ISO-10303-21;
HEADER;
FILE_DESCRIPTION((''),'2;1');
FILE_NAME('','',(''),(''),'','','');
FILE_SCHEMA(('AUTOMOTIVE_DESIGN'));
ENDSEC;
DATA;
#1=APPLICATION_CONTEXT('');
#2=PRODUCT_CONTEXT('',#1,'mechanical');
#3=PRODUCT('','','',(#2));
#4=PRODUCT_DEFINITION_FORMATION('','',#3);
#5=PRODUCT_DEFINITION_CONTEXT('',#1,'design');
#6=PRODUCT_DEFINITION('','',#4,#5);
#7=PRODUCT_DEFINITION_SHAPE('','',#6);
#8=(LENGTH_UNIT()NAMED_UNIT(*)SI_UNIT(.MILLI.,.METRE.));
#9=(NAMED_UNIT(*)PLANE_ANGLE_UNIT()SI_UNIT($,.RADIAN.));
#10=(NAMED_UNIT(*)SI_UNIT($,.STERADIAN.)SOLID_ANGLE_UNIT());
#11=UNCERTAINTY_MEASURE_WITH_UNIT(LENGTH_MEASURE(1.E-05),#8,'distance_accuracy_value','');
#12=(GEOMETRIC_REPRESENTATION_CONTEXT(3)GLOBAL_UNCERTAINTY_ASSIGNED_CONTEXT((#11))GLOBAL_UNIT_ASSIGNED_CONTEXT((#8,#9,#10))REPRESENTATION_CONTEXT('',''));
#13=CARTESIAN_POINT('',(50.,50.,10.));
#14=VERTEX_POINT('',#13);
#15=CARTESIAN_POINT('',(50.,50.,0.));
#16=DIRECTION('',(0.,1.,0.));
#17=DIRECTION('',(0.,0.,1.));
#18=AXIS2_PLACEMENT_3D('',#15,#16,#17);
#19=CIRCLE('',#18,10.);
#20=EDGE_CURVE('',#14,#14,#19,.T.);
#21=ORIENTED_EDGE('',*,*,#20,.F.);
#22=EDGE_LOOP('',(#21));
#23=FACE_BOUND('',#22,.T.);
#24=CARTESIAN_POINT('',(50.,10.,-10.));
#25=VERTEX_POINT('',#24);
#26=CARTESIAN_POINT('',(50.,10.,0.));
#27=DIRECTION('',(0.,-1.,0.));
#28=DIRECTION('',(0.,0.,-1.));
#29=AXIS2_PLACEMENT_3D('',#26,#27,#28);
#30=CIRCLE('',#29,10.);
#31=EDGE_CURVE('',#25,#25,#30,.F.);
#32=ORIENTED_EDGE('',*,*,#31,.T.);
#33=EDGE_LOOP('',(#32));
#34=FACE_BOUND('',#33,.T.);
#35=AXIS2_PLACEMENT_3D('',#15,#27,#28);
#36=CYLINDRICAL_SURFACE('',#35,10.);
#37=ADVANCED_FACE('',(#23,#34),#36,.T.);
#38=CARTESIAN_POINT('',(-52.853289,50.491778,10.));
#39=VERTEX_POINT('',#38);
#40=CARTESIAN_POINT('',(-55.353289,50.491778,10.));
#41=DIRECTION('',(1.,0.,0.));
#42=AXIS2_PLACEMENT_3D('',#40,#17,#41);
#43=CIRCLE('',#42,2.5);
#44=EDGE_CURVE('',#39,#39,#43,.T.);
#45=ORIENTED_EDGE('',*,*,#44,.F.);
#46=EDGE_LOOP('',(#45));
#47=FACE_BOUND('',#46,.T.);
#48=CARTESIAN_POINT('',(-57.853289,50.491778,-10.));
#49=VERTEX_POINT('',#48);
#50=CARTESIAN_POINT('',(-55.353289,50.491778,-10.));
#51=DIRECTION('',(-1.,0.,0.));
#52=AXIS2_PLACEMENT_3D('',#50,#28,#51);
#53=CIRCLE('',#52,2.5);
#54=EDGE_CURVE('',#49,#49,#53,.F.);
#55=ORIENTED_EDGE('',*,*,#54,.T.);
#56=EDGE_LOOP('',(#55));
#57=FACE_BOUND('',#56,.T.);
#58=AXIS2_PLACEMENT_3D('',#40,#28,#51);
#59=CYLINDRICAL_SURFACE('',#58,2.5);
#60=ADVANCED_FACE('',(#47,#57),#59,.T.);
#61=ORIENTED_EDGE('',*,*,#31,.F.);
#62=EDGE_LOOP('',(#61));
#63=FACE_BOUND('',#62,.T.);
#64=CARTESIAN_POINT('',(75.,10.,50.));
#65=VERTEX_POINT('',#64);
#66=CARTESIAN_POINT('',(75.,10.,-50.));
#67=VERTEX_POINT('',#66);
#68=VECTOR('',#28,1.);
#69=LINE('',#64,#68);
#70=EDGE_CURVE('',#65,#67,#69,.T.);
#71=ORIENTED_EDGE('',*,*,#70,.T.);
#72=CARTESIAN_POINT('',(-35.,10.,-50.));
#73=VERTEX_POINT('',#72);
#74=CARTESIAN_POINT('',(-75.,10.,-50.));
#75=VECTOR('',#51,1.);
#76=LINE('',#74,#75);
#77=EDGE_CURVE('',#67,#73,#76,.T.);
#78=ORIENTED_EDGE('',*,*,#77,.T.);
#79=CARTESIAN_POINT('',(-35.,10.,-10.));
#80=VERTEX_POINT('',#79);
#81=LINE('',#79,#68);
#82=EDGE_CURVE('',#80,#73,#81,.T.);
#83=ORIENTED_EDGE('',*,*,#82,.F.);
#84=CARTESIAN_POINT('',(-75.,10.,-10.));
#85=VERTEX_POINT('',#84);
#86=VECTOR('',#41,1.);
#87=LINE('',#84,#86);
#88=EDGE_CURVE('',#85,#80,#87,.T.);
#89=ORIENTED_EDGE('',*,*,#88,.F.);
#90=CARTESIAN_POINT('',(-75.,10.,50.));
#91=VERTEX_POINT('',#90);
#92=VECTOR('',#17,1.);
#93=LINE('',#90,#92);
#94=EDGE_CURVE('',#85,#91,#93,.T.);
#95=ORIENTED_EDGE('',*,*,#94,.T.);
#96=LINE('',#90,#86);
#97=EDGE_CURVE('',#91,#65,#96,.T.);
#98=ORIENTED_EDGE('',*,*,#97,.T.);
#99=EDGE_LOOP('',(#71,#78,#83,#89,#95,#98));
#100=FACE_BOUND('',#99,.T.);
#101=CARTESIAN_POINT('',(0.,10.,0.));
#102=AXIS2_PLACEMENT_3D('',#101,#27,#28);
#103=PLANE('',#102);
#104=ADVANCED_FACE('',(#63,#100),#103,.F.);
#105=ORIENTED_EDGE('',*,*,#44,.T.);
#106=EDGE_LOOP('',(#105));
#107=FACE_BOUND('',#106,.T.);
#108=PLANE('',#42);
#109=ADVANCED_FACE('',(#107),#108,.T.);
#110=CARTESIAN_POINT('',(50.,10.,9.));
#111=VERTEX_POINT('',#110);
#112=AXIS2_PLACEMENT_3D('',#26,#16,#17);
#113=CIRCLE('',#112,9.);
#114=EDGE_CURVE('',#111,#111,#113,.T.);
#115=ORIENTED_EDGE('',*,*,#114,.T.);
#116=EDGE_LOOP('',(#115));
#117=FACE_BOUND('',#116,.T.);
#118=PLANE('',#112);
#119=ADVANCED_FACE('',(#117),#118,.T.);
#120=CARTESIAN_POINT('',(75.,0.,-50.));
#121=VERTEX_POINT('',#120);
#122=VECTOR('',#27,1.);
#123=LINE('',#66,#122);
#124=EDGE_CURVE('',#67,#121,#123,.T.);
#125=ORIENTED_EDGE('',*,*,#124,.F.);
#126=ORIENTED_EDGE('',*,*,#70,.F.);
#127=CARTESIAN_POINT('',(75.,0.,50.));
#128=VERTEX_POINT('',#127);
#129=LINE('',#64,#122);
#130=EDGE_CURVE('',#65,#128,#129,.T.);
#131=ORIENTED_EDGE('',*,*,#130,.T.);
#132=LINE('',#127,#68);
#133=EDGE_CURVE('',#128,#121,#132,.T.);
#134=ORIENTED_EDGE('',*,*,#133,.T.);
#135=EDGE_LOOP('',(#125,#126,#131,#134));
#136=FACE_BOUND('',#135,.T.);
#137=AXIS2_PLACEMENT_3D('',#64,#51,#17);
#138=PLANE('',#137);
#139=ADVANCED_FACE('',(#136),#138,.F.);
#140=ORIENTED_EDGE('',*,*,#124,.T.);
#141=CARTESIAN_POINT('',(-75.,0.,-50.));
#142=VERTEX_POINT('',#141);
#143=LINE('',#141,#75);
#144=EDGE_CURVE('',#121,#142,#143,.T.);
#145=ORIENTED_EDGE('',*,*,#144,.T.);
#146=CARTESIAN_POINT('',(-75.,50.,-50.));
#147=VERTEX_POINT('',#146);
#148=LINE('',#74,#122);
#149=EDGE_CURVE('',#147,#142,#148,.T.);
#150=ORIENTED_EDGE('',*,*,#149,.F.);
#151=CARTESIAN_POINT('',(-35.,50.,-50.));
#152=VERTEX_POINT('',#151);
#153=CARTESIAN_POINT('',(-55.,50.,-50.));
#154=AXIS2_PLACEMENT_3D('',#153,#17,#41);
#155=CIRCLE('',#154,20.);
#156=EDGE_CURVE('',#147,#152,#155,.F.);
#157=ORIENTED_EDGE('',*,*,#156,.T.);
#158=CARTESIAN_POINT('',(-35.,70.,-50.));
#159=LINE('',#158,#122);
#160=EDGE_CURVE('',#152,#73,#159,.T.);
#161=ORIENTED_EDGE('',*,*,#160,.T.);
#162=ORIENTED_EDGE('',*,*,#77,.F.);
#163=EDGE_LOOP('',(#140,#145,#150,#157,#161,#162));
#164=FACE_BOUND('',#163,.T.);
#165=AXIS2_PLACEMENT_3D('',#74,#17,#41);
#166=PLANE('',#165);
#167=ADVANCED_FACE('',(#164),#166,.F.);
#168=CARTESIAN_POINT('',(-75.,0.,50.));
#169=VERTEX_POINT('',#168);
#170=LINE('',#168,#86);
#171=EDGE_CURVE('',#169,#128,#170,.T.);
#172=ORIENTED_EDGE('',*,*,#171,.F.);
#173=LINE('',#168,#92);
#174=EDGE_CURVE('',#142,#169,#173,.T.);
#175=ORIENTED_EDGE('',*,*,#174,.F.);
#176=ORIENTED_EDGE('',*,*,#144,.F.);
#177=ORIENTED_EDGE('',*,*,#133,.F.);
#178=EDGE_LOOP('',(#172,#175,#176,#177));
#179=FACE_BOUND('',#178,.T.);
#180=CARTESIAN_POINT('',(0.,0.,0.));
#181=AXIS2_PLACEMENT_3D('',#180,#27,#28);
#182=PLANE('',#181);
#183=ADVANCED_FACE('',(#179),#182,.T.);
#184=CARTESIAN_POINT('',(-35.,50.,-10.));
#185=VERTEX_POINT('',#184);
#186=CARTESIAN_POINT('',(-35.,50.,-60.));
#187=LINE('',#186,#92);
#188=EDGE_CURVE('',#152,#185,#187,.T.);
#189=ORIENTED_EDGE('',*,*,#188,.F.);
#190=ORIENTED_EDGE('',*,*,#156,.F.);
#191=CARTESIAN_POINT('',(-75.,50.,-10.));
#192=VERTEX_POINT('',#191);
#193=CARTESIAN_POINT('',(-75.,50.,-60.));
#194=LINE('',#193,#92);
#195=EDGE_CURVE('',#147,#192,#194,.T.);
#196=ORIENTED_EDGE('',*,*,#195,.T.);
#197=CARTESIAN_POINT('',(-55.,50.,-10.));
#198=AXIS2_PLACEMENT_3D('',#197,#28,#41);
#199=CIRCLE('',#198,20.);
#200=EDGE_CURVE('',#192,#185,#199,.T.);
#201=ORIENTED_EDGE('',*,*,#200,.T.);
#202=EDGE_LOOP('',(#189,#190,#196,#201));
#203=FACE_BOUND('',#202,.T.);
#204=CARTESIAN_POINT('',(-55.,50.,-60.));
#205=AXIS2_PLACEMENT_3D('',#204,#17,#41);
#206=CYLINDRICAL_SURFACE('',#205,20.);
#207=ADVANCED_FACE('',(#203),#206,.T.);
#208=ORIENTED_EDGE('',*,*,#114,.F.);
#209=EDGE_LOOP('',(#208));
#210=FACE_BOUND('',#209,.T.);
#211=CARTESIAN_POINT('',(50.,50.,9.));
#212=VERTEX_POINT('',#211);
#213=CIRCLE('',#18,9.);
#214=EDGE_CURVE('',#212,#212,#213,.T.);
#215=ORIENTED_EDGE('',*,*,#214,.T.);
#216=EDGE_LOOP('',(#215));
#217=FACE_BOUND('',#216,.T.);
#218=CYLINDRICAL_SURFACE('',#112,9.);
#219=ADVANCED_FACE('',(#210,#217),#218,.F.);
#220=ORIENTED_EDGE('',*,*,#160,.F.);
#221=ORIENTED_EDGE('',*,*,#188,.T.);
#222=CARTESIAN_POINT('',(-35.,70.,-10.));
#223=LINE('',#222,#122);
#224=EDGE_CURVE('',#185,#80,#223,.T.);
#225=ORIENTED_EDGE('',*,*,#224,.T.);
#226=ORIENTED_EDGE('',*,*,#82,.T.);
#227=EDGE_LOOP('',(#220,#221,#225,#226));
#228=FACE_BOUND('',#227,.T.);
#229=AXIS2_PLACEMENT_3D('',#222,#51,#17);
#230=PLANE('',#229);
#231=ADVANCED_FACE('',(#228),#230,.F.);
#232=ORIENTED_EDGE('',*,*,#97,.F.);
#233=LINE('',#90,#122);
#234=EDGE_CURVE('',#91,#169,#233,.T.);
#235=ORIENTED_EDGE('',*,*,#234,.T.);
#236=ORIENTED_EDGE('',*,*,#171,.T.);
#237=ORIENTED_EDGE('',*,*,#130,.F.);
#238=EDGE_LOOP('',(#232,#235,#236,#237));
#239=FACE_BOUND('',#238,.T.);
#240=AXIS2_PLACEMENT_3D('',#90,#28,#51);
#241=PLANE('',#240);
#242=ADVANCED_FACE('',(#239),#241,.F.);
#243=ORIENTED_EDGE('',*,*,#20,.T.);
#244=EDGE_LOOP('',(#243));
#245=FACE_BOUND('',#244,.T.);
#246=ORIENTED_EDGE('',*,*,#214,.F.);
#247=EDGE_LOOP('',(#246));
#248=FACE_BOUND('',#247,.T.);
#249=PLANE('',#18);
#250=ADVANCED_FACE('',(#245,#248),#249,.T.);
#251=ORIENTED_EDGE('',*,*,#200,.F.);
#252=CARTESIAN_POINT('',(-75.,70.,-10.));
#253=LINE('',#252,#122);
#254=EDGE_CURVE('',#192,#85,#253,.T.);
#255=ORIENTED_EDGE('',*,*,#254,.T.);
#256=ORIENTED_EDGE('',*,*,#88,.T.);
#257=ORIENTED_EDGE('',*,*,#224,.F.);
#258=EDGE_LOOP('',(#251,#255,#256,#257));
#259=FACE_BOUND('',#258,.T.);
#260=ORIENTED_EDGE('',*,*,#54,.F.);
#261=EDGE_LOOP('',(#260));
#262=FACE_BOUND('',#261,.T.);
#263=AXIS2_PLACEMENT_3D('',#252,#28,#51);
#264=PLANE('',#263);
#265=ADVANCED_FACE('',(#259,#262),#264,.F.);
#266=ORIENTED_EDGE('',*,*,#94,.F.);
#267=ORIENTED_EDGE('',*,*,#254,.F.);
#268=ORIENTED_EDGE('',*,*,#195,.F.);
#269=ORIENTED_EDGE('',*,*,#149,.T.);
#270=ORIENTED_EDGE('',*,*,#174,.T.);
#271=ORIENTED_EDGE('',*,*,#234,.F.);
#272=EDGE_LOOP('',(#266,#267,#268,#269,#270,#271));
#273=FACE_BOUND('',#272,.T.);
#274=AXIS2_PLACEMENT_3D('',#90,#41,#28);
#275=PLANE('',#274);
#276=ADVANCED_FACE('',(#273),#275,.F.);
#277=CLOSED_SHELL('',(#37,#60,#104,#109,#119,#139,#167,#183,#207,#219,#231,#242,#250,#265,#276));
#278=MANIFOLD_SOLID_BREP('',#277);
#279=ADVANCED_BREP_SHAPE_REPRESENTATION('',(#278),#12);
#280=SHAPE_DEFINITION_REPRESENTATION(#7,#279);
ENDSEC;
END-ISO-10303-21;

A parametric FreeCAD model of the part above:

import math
import FreeCAD as App
import Part
import Sketcher

V = App.Vector
Q = App.Units.Quantity

doc = App.newDocument("Part")
body = doc.addObject("PartDesign::Body", "Body")

# Sketch on XZ plane
sketch1 = doc.addObject("Sketcher::SketchObject", "Sketch")
body.addObject(sketch1)
sketch1.AttachmentSupport = (doc.XZ_Plane, [""])
sketch1.MapMode = "FlatFace"
sketch1.addGeometry(Part.LineSegment(V(-75, -50, 0), V(-75, 50, 0)), False)
sketch1.addGeometry(Part.LineSegment(V(-75, 50, 0), V(75, 50, 0)), False)
sketch1.addGeometry(Part.LineSegment(V(75, 50, 0), V(75, -50, 0)), False)
sketch1.addGeometry(Part.LineSegment(V(75, -50, 0), V(-75, -50, 0)), False)
sketch1.addConstraint(Sketcher.Constraint("Coincident", 0, 2, 1, 1))
sketch1.addConstraint(Sketcher.Constraint("Coincident", 1, 2, 2, 1))
sketch1.addConstraint(Sketcher.Constraint("Coincident", 2, 2, 3, 1))
sketch1.addConstraint(Sketcher.Constraint("Coincident", 3, 2, 0, 1))
sketch1.addConstraint(Sketcher.Constraint("Vertical", 0))
sketch1.addConstraint(Sketcher.Constraint("Horizontal", 1))
sketch1.addConstraint(Sketcher.Constraint("Vertical", 2))
sketch1.addConstraint(Sketcher.Constraint("Horizontal", 3))
sketch1.addConstraint(Sketcher.Constraint("Symmetric", 0, 2, 2, 2, -1, 1))
sketch1.addConstraint(Sketcher.Constraint("DistanceX", 1, 1, 1, 2, Q("150 mm")))
sketch1.addConstraint(Sketcher.Constraint("DistanceY", 0, 1, 0, 2, Q("100 mm")))
pad1 = doc.addObject("PartDesign::Pad", "Pad")
body.addObject(pad1)
pad1.Profile = sketch1
pad1.Length = 10
pad1.Reversed = True

# Sketch on XZ plane
sketch2 = doc.addObject("Sketcher::SketchObject", "Sketch001")
body.addObject(sketch2)
sketch2.AttachmentSupport = (doc.XZ_Plane, [""])
sketch2.MapMode = "FlatFace"
sketch2.AttachmentOffset = App.Placement(V(0, 0, -10), App.Rotation())
sketch2.addGeometry(Part.Circle(V(50, 0, 0), V(0, 0, 1), 10), False)
sketch2.addConstraint(Sketcher.Constraint("PointOnObject", 0, 3, -1))
sketch2.addConstraint(Sketcher.Constraint("Diameter", 0, Q("20 mm")))
sketch2.addConstraint(Sketcher.Constraint("DistanceX", -1, 1, 0, 3, Q("50 mm")))
pad2 = doc.addObject("PartDesign::Pad", "Pad001")
body.addObject(pad2)
pad2.Profile = sketch2
pad2.Length = 40
pad2.Reversed = True

# Sketch on XZ plane
sketch3 = doc.addObject("Sketcher::SketchObject", "Sketch002")
body.addObject(sketch3)
sketch3.AttachmentSupport = (doc.XZ_Plane, [""])
sketch3.MapMode = "FlatFace"
sketch3.AttachmentOffset = App.Placement(V(0, 0, -50), App.Rotation())
sketch3.addGeometry(Part.Circle(V(50, 0, 0), V(0, 0, 1), 9), False)
sketch3.addConstraint(Sketcher.Constraint("PointOnObject", 0, 3, -1))
sketch3.addConstraint(Sketcher.Constraint("Diameter", 0, Q("18 mm")))
sketch3.addConstraint(Sketcher.Constraint("DistanceX", -1, 1, 0, 3, Q("50 mm")))
pocket1 = doc.addObject("PartDesign::Pocket", "Pocket")
body.addObject(pocket1)
pocket1.Profile = sketch3
pocket1.Length = 40
pocket1.Reversed = True

# Sketch on XZ plane
sketch4 = doc.addObject("Sketcher::SketchObject", "Sketch003")
body.addObject(sketch4)
sketch4.AttachmentSupport = (doc.XZ_Plane, [""])
sketch4.MapMode = "FlatFace"
sketch4.AttachmentOffset = App.Placement(V(0, 0, -10), App.Rotation())
sketch4.addGeometry(Part.LineSegment(V(-75, -50, 0), V(-75, -10, 0)), False)
sketch4.addGeometry(Part.LineSegment(V(-75, -10, 0), V(-35, -10, 0)), False)
sketch4.addGeometry(Part.LineSegment(V(-35, -10, 0), V(-35, -50, 0)), False)
sketch4.addGeometry(Part.LineSegment(V(-35, -50, 0), V(-75, -50, 0)), False)
sketch4.addConstraint(Sketcher.Constraint("Coincident", 0, 2, 1, 1))
sketch4.addConstraint(Sketcher.Constraint("Coincident", 1, 2, 2, 1))
sketch4.addConstraint(Sketcher.Constraint("Coincident", 2, 2, 3, 1))
sketch4.addConstraint(Sketcher.Constraint("Coincident", 3, 2, 0, 1))
sketch4.addConstraint(Sketcher.Constraint("Vertical", 0))
sketch4.addConstraint(Sketcher.Constraint("Horizontal", 1))
sketch4.addConstraint(Sketcher.Constraint("Vertical", 2))
sketch4.addConstraint(Sketcher.Constraint("Horizontal", 3))
sketch4.addConstraint(Sketcher.Constraint("Equal", 3, 0))
sketch4.addConstraint(Sketcher.Constraint("DistanceX", 1, 1, 1, 2, Q("40 mm")))
sketch4.addConstraint(Sketcher.Constraint("DistanceX", 0, 2, -1, 1, Q("75 mm")))
sketch4.addConstraint(Sketcher.Constraint("DistanceY", 0, 2, -1, 1, Q("10 mm")))
pad3 = doc.addObject("PartDesign::Pad", "Pad002")
body.addObject(pad3)
pad3.Profile = sketch4
pad3.Length = 60
pad3.Reversed = True

# Sketch on XY plane
sketch5 = doc.addObject("Sketcher::SketchObject", "Sketch004")
body.addObject(sketch5)
sketch5.AttachmentSupport = (doc.XY_Plane, [""])
sketch5.MapMode = "FlatFace"
sketch5.AttachmentOffset = App.Placement(V(0, 0, -10), App.Rotation())
sketch5.addGeometry(Part.LineSegment(V(-75, 70, 0), V(-75, 50, 0)), False)
sketch5.addGeometry(Part.ArcOfCircle(Part.Circle(V(-55, 50, 0), V(0, 0, 1), 20), math.radians(90), math.radians(180)), False)
sketch5.addGeometry(Part.LineSegment(V(-55, 70, 0), V(-75, 70, 0)), False)
sketch5.addConstraint(Sketcher.Constraint("Tangent", 0, 2, 1, 2))
sketch5.addConstraint(Sketcher.Constraint("Tangent", 1, 1, 2, 1))
sketch5.addConstraint(Sketcher.Constraint("Coincident", 2, 2, 0, 1))
sketch5.addConstraint(Sketcher.Constraint("Vertical", 0))
sketch5.addConstraint(Sketcher.Constraint("Horizontal", 2))
sketch5.addConstraint(Sketcher.Constraint("Radius", 1, Q("20 mm")))
sketch5.addConstraint(Sketcher.Constraint("DistanceX", 1, 3, -1, 1, Q("55 mm")))
sketch5.addConstraint(Sketcher.Constraint("DistanceY", -1, 1, 1, 3, Q("50 mm")))
pocket2 = doc.addObject("PartDesign::Pocket", "Pocket001")
body.addObject(pocket2)
pocket2.Profile = sketch5
pocket2.Length = 50

# Sketch on XY plane
sketch6 = doc.addObject("Sketcher::SketchObject", "Sketch005")
body.addObject(sketch6)
sketch6.AttachmentSupport = (doc.XY_Plane, [""])
sketch6.MapMode = "FlatFace"
sketch6.AttachmentOffset = App.Placement(V(0, 0, -10), App.Rotation())
sketch6.addGeometry(Part.LineSegment(V(-35, 70, 0), V(-55, 70, 0)), False)
sketch6.addGeometry(Part.ArcOfCircle(Part.Circle(V(-55, 50, 0), V(0, 0, 1), 20), math.radians(0), math.radians(90)), False)
sketch6.addGeometry(Part.LineSegment(V(-35, 50, 0), V(-35, 70, 0)), False)
sketch6.addConstraint(Sketcher.Constraint("Tangent", 0, 2, 1, 2))
sketch6.addConstraint(Sketcher.Constraint("Tangent", 1, 1, 2, 1))
sketch6.addConstraint(Sketcher.Constraint("Coincident", 2, 2, 0, 1))
sketch6.addConstraint(Sketcher.Constraint("Horizontal", 0))
sketch6.addConstraint(Sketcher.Constraint("Vertical", 2))
sketch6.addConstraint(Sketcher.Constraint("Radius", 1, Q("20 mm")))
sketch6.addConstraint(Sketcher.Constraint("DistanceX", 1, 3, -1, 1, Q("55 mm")))
sketch6.addConstraint(Sketcher.Constraint("DistanceY", -1, 1, 1, 3, Q("50 mm")))
pocket3 = doc.addObject("PartDesign::Pocket", "Pocket002")
body.addObject(pocket3)
pocket3.Profile = sketch6
pocket3.Length = 50

# Sketch on XY plane
sketch7 = doc.addObject("Sketcher::SketchObject", "Sketch006")
body.addObject(sketch7)
sketch7.AttachmentSupport = (doc.XY_Plane, [""])
sketch7.MapMode = "FlatFace"
sketch7.AttachmentOffset = App.Placement(V(0, 0, -10), App.Rotation())
sketch7.addGeometry(Part.Circle(V(-55.4, 50.5, 0), V(0, 0, 1), 2.5), False)
sketch7.addConstraint(Sketcher.Constraint("Diameter", 0, Q("5 mm")))
sketch7.addConstraint(Sketcher.Constraint("DistanceX", 0, 3, -1, 1, Q("55.353289 mm")))
sketch7.addConstraint(Sketcher.Constraint("DistanceY", -1, 1, 0, 3, Q("50.491778 mm")))
pad4 = doc.addObject("PartDesign::Pad", "Pad003")
body.addObject(pad4)
pad4.Profile = sketch7
pad4.Length = 20

doc.recompute()
